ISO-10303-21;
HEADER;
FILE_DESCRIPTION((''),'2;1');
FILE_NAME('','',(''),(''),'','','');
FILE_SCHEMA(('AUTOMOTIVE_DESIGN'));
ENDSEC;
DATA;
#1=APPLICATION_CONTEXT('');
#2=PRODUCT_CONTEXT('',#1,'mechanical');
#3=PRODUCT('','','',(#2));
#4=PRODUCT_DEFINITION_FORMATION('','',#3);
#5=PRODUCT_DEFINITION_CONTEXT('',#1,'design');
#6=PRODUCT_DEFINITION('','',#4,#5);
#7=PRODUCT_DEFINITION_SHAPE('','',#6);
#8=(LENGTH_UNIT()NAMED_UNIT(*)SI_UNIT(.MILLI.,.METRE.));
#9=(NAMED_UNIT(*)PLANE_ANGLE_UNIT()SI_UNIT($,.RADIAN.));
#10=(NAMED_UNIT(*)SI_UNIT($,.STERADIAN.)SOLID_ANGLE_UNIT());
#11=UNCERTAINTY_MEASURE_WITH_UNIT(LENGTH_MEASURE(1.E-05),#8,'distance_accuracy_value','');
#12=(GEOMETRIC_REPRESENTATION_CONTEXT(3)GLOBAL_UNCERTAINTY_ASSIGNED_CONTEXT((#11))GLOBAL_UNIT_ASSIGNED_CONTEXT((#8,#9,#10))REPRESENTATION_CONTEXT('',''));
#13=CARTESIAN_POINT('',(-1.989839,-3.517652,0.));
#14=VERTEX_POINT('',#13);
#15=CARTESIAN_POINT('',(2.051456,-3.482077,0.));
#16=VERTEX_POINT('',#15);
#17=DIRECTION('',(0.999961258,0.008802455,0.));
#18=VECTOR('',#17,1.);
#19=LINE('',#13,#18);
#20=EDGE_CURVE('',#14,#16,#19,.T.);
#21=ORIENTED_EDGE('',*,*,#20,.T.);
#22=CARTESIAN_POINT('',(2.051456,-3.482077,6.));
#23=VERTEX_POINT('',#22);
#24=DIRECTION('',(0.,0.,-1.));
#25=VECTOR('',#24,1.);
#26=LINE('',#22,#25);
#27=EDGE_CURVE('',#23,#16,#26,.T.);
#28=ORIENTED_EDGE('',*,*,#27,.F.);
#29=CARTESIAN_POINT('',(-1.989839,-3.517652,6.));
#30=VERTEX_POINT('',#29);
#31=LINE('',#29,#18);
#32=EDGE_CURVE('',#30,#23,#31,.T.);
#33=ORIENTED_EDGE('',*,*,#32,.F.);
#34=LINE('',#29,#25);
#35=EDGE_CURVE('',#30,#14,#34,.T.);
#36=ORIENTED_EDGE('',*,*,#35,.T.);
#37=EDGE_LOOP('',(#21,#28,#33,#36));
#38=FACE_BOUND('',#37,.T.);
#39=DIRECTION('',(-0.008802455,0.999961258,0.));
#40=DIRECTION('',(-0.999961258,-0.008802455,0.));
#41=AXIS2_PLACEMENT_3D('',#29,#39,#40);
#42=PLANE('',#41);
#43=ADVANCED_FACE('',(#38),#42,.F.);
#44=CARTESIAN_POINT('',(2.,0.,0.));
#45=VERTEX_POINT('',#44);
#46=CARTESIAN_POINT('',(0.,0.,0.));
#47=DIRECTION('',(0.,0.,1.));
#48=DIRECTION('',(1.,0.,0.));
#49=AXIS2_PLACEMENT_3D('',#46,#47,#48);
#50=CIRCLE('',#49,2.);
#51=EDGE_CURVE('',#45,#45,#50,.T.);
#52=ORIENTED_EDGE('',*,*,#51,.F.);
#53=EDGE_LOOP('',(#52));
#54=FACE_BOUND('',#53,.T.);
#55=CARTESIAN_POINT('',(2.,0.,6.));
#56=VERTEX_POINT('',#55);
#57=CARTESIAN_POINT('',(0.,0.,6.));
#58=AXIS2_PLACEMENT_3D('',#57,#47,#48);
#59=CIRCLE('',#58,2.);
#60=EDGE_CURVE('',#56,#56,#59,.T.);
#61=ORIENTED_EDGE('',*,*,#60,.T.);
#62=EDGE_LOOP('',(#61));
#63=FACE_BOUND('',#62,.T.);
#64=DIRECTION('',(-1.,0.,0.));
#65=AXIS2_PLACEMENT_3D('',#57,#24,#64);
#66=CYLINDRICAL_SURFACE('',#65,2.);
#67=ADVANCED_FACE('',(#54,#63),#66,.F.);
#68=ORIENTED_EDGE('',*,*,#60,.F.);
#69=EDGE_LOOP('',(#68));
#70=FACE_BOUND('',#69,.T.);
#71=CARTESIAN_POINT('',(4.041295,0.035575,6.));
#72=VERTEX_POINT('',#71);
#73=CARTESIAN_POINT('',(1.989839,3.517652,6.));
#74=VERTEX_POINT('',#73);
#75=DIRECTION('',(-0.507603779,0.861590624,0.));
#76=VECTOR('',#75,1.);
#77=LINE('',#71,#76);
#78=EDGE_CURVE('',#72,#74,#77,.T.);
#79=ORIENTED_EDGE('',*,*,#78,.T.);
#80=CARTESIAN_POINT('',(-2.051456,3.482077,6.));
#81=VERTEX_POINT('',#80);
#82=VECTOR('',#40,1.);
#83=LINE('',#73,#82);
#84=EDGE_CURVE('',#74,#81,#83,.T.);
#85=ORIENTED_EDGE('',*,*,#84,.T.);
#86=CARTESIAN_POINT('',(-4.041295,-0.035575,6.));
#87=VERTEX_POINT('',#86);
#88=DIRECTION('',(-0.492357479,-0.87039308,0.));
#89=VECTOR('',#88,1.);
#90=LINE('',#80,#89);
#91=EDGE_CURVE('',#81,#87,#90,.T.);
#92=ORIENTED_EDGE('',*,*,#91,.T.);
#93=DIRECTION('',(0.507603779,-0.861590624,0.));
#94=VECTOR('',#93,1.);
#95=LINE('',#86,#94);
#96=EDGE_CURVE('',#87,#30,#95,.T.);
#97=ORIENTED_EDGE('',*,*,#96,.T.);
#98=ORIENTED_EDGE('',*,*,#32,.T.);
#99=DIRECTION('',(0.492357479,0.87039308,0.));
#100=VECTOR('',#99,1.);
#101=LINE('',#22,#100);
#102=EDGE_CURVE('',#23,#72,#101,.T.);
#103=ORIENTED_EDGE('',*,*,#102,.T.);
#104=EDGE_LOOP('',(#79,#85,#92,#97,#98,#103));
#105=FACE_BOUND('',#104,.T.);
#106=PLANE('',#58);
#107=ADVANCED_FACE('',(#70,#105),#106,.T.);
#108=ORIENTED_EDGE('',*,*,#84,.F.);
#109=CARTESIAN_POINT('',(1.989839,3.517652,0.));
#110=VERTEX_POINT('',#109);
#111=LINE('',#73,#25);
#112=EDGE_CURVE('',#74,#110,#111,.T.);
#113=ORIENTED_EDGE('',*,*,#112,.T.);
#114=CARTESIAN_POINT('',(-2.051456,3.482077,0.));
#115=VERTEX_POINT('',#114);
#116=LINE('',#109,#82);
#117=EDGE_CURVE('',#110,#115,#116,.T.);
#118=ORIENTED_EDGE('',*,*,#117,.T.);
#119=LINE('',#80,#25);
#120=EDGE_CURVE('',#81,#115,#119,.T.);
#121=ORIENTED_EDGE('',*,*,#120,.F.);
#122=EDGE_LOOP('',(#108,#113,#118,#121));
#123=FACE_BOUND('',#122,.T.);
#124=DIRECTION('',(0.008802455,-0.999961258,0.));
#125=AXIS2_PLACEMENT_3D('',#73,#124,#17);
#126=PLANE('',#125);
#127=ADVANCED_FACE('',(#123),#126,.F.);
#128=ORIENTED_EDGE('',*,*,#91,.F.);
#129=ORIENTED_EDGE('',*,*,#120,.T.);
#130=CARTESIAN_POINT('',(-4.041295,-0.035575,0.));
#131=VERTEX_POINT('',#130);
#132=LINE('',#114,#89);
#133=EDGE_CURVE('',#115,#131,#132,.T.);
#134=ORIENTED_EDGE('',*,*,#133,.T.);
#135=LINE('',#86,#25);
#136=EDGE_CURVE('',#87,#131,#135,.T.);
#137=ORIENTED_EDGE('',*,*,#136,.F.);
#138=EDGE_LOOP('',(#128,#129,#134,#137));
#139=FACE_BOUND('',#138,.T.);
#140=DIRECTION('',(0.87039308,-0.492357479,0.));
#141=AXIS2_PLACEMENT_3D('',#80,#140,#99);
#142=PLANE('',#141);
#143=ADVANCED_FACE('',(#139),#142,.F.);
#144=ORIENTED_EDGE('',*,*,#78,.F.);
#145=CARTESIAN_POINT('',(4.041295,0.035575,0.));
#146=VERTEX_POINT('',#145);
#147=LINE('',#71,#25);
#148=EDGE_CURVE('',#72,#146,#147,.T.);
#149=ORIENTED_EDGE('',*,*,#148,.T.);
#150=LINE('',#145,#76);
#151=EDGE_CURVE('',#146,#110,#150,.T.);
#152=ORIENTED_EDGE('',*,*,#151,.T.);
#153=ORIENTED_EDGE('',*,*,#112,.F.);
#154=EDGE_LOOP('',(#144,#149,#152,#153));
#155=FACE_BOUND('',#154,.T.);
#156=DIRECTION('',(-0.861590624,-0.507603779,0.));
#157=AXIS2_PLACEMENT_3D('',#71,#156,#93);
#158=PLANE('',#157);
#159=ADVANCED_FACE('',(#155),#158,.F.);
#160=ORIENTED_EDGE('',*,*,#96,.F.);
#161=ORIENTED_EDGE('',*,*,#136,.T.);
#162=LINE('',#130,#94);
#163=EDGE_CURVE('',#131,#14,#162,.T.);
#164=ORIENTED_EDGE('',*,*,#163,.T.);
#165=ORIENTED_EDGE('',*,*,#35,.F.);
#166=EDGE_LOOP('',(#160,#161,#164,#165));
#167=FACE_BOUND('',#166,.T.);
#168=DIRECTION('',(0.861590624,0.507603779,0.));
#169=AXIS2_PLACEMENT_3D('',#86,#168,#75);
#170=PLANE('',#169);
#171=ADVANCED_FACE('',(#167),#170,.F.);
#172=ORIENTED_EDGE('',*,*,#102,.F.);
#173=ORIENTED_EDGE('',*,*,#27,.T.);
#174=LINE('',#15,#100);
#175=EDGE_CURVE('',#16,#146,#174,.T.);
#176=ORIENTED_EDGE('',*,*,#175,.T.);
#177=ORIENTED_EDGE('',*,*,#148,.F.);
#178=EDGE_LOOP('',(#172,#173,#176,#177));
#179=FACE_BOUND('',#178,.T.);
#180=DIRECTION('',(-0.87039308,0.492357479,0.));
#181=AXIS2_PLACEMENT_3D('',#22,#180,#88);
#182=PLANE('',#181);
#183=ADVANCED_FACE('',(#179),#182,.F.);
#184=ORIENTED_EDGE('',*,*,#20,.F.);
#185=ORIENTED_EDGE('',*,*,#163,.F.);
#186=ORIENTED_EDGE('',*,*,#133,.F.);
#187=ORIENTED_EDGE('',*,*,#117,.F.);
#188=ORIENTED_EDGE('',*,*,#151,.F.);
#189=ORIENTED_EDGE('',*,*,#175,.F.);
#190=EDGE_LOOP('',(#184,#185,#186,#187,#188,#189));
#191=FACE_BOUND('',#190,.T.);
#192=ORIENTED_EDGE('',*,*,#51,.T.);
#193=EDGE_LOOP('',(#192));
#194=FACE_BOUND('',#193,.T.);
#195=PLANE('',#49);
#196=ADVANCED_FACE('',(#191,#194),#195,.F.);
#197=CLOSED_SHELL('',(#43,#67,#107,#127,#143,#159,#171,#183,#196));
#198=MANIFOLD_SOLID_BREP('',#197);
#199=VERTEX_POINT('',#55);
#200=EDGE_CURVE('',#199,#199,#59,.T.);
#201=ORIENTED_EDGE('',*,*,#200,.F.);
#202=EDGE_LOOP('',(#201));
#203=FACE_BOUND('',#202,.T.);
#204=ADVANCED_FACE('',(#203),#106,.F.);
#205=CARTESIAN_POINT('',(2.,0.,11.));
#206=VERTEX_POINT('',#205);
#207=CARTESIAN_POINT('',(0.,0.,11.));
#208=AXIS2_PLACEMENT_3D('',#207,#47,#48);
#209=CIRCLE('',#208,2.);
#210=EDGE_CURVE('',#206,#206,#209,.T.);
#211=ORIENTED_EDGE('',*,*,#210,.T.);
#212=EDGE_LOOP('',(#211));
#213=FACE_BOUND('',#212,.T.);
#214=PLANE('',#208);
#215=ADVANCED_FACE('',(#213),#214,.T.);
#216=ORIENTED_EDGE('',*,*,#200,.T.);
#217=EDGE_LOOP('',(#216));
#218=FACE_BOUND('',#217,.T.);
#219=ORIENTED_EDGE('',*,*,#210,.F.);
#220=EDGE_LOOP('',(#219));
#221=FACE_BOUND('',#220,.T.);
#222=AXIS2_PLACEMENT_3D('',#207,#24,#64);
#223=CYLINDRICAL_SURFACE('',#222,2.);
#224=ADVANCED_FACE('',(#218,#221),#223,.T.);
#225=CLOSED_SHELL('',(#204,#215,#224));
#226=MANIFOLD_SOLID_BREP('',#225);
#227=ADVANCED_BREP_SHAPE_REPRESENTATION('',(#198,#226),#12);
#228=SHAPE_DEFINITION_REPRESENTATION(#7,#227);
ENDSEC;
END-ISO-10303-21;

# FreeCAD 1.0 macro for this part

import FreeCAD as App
import Part
import Sketcher
Q = App.Units.Quantity


def add_polygon(sketch, points):
    """Adds a closed chain of lines whose ends are joined by coincident constraints."""
    first, n = sketch.GeometryCount, len(points)
    for a, b in zip(points, points[1:] + points[:1]):
        sketch.addGeometry(Part.LineSegment(App.Vector(*a, 0), App.Vector(*b, 0)), False)
    for i in range(n):
        sketch.addConstraint(Sketcher.Constraint("Coincident", first + i, 2, first + (i + 1) % n, 1))

doc = App.newDocument("Part")
body = doc.addObject("PartDesign::Body", "Body")

sketch1 = doc.addObject("Sketcher::SketchObject", "Sketch")
body.addObject(sketch1)
sketch1.AttachmentSupport = (doc.XY_Plane, [""])
sketch1.MapMode = "FlatFace"
add_polygon(sketch1, [(2.1, -3.5), (4, 0), (2, 3.5), (-2.1, 3.5), (-4, 0), (-2, -3.5)])
sketch1.addGeometry(Part.Circle(App.Vector(0, 0, 0), App.Vector(0, 0, 1), 2), False)
sketch1.addConstraint([
    Sketcher.Constraint("Coincident", 6, 3, -1, 1),
    Sketcher.Constraint("Symmetric", 0, 2, 3, 2, -1, 1),
    Sketcher.Constraint("Symmetric", 1, 2, 4, 2, -1, 1),
    Sketcher.Constraint("Symmetric", 2, 2, 5, 2, -1, 1),
    Sketcher.Constraint("Equal", 0, 1),
    Sketcher.Constraint("Equal", 1, 2),
    Sketcher.Constraint("Diameter", 6, Q("4 mm")),
    Sketcher.Constraint("Distance", 0, Q("4.041452 mm")),
    Sketcher.Constraint("DistanceX", -1, 1, 1, 2, Q("1.989839 mm")),
    Sketcher.Constraint("DistanceY", -1, 1, 1, 2, Q("3.517652 mm")),
    Sketcher.Constraint("DistanceX", 2, 2, 0, 2, Q("6.092752 mm")),
])
pad1 = doc.addObject("PartDesign::Pad", "Pad")
body.addObject(pad1)
pad1.Profile = sketch1
pad1.Length = 6
body2 = doc.addObject("PartDesign::Body", "Body001")

sketch2 = doc.addObject("Sketcher::SketchObject", "Sketch001")
body2.addObject(sketch2)
sketch2.AttachmentSupport = (doc.getObject("XY_Plane001"), [""])
sketch2.MapMode = "FlatFace"
sketch2.AttachmentOffset = App.Placement(App.Vector(0, 0, 6), App.Rotation())
sketch2.addGeometry(Part.Circle(App.Vector(0, 0, 0), App.Vector(0, 0, 1), 2), False)
sketch2.addConstraint([
    Sketcher.Constraint("Coincident", 0, 3, -1, 1),
    Sketcher.Constraint("Diameter", 0, Q("4 mm")),
])
pad2 = doc.addObject("PartDesign::Pad", "Pad001")
body2.addObject(pad2)
pad2.Profile = sketch2
pad2.Length = 5

doc.recompute()
